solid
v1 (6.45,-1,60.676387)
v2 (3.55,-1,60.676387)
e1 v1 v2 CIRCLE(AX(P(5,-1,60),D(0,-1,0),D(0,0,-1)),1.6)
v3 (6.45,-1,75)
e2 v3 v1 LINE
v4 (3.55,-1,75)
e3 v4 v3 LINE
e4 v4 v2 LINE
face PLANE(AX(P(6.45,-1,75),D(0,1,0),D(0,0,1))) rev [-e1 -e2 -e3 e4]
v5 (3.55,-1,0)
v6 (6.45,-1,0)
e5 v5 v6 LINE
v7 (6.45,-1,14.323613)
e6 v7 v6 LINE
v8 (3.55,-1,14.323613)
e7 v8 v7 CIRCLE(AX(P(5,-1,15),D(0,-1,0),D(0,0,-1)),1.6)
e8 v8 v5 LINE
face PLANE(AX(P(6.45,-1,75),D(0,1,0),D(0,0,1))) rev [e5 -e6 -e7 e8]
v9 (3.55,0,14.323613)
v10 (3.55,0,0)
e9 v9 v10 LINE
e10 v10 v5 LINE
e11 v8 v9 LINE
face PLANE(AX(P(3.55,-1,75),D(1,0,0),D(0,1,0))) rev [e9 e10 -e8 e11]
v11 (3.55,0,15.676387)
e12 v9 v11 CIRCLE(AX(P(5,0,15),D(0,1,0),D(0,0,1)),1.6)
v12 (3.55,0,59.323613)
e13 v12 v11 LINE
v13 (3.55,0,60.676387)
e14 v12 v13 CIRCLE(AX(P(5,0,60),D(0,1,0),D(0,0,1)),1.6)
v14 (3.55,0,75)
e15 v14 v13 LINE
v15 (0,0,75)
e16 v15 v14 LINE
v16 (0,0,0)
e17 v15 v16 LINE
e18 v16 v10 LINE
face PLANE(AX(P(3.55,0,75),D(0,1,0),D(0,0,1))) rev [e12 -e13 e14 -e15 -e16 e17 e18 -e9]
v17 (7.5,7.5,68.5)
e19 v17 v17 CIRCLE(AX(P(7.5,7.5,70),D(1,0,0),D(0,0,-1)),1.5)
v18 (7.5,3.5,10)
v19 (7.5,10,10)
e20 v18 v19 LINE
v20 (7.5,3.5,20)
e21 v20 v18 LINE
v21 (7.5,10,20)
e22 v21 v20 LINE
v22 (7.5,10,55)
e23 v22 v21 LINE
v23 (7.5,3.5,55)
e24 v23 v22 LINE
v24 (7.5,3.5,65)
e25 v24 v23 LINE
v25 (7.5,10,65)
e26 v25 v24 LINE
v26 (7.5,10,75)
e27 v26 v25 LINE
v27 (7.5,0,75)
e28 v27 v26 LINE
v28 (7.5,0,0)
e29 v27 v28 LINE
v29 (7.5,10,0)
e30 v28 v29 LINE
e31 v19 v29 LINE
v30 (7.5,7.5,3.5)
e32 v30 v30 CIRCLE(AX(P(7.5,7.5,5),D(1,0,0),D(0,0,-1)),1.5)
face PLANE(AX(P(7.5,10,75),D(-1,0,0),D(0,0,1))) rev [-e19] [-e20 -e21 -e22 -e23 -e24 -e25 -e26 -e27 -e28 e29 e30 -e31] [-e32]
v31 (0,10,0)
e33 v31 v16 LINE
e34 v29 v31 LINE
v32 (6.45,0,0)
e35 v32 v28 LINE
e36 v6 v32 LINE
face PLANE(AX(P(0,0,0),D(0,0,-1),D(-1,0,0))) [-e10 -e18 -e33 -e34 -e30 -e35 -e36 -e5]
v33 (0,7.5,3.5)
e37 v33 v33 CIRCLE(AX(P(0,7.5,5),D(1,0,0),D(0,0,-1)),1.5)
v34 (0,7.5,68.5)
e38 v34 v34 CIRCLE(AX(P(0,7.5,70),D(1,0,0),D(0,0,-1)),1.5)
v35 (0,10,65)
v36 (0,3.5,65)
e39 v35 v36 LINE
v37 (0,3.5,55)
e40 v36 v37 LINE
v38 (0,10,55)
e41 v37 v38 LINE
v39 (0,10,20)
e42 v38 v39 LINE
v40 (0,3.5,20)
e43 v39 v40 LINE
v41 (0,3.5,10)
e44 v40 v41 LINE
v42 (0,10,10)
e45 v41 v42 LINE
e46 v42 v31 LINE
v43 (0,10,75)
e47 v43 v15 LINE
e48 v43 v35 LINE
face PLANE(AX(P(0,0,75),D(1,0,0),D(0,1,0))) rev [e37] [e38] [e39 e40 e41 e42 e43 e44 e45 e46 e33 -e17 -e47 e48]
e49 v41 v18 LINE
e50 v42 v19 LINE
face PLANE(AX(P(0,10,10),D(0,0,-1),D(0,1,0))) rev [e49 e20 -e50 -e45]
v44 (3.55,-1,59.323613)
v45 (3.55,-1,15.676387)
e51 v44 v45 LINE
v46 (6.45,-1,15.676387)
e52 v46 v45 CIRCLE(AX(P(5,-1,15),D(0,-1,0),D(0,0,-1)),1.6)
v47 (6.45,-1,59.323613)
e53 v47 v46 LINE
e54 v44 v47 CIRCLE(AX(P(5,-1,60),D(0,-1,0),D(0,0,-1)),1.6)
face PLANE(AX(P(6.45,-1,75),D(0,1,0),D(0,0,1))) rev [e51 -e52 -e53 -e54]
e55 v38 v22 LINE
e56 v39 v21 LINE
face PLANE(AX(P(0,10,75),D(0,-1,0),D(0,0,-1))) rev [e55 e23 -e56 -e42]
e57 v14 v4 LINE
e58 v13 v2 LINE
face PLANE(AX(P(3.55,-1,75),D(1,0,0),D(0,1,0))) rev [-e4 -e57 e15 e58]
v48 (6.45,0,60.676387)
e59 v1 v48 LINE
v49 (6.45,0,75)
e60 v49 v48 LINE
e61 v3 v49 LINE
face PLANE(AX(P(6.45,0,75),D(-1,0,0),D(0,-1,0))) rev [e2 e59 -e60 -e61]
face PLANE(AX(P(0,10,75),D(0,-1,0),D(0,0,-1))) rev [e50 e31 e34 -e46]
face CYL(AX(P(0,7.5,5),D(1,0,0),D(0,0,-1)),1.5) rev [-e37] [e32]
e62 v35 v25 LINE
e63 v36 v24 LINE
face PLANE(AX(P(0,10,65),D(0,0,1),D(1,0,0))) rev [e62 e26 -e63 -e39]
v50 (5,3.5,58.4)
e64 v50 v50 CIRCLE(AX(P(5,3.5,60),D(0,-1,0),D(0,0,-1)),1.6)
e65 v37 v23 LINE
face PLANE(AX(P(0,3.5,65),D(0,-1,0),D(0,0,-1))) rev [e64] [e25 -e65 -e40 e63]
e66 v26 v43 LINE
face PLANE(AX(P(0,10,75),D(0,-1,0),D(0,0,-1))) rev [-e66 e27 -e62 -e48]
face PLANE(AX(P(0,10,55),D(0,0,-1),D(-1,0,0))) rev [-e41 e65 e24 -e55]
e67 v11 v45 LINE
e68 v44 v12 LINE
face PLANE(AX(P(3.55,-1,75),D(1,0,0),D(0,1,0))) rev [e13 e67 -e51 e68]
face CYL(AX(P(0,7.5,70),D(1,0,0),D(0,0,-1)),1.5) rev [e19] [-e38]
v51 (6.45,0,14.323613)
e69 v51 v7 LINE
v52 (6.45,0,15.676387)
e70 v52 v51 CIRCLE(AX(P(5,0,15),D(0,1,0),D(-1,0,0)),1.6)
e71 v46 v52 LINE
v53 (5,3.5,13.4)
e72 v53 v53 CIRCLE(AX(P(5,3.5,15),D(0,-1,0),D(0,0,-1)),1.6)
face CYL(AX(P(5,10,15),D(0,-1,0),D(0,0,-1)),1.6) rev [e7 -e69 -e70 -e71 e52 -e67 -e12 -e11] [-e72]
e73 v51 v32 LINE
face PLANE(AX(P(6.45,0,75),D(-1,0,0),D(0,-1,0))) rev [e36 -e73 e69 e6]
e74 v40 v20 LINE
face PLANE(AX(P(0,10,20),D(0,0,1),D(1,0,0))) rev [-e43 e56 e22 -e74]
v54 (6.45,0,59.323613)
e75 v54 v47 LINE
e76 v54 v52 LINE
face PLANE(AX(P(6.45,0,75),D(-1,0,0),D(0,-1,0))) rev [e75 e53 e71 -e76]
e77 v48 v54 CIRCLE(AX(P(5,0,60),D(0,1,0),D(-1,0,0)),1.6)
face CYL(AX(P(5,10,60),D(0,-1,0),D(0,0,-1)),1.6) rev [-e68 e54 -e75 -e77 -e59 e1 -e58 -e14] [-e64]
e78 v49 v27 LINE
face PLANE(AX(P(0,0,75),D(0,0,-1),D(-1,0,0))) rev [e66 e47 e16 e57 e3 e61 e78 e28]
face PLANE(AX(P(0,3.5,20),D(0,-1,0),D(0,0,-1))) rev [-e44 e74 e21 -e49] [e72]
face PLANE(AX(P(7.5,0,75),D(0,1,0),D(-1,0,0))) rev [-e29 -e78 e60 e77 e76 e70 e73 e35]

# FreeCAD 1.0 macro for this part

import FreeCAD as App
import Part
import Sketcher

V = App.Vector
Q = App.Units.Quantity

doc = App.newDocument("Part")
params = doc.addObject("Spreadsheet::Sheet", "Params")
for row, (alias, value) in enumerate([
    ("sketch1_height", "10 mm"),
    ("sketch1_height2", "1 mm"),
    ("sketch1_width", "7.5 mm"),
    ("sketch1_width2", "2.9 mm"),
    ("sketch1_width3", "3.55 mm"),
    ("pad1_length", "75 mm"),
    ("sketch2_diameter", "3 mm"),
    ("sketch3_height", "10 mm"),
    ("sketch3_width", "6.5 mm"),
    ("sketch4_diameter", "3.2 mm"),
], start=1):
    params.set(f"A{row}", alias)
    params.set(f"B{row}", "=" + value)
    params.setAlias(f"B{row}", alias)

body = doc.addObject("PartDesign::Body", "Body")

sketch1 = body.newObject("Sketcher::SketchObject", "Sketch")
sketch1.AttachmentSupport = (doc.getObject("XY_Plane"), [""])
sketch1.MapMode = "FlatFace"
sketch1.addGeometry([
    Part.LineSegment(V(7.5, 10, 0), V(0, 10, 0)),
    Part.LineSegment(V(0, 10, 0), V(0, 0, 0)),
    Part.LineSegment(V(0, 0, 0), V(3.5, 0, 0)),
    Part.LineSegment(V(3.5, 0, 0), V(3.5, -1, 0)),
    Part.LineSegment(V(3.5, -1, 0), V(6.5, -1, 0)),
    Part.LineSegment(V(6.5, -1, 0), V(6.5, 0, 0)),
    Part.LineSegment(V(6.5, 0, 0), V(7.5, 0, 0)),
    Part.LineSegment(V(7.5, 0, 0), V(7.5, 10, 0)),
], False)
sketch1.addConstraint([
    Sketcher.Constraint("Coincident", 0, 2, 1, 1),
    Sketcher.Constraint("Coincident", 1, 2, 2, 1),
    Sketcher.Constraint("Coincident", 2, 2, 3, 1),
    Sketcher.Constraint("Coincident", 3, 2, 4, 1),
    Sketcher.Constraint("Coincident", 4, 2, 5, 1),
    Sketcher.Constraint("Coincident", 5, 2, 6, 1),
    Sketcher.Constraint("Coincident", 6, 2, 7, 1),
    Sketcher.Constraint("Coincident", 7, 2, 0, 1),
    Sketcher.Constraint("Horizontal", 0),
    Sketcher.Constraint("Vertical", 1),
    Sketcher.Constraint("Horizontal", 2),
    Sketcher.Constraint("Vertical", 3),
    Sketcher.Constraint("Horizontal", 4),
    Sketcher.Constraint("Vertical", 5),
    Sketcher.Constraint("Horizontal", 6),
    Sketcher.Constraint("Vertical", 7),
    Sketcher.Constraint("Coincident", 1, 2, -1, 1),
    Sketcher.Constraint("PointOnObject", 5, 2, -1),
    Sketcher.Constraint("DistanceY", 1, 2, 1, 1, Q("10 mm")),
    Sketcher.Constraint("DistanceY", 3, 2, 3, 1, Q("1 mm")),
    Sketcher.Constraint("DistanceX", 0, 2, 0, 1, Q("7.5 mm")),
    Sketcher.Constraint("DistanceX", 4, 1, 4, 2, Q("2.9 mm")),
    Sketcher.Constraint("DistanceX", 2, 1, 2, 2, Q("3.55 mm")),
])
sketch1.setExpression("Constraints[18]", "Params.sketch1_height")
sketch1.setExpression("Constraints[19]", "Params.sketch1_height2")
sketch1.setExpression("Constraints[20]", "Params.sketch1_width")
sketch1.setExpression("Constraints[21]", "Params.sketch1_width2")
sketch1.setExpression("Constraints[22]", "Params.sketch1_width3")
pad1 = body.newObject("PartDesign::Pad", "Pad")
pad1.Profile = sketch1
pad1.setExpression("Length", "Params.pad1_length")

sketch2 = body.newObject("Sketcher::SketchObject", "Sketch001")
sketch2.AttachmentSupport = (doc.getObject("YZ_Plane"), [""])
sketch2.MapMode = "FlatFace"
sketch2.AttachmentOffset = App.Placement(V(0, 0, 7.5), App.Rotation())
sketch2.addGeometry([
    Part.Circle(V(7.5, 5, 0), V(0, 0, 1), 1.5),
    Part.Circle(V(7.5, 70, 0), V(0, 0, 1), 1.5),
], False)
sketch2.addConstraint([
    Sketcher.Constraint("Equal", 0, 1),
    Sketcher.Constraint("Vertical", 0, 3, 1, 3),
    Sketcher.Constraint("Diameter", 0, Q("3 mm")),
    Sketcher.Constraint("DistanceY", -1, 1, 0, 3, Q("5 mm")),
    Sketcher.Constraint("DistanceY", -1, 1, 1, 3, Q("70 mm")),
    Sketcher.Constraint("DistanceX", -1, 1, 0, 3, Q("7.5 mm")),
])
sketch2.setExpression("Constraints[2]", "Params.sketch2_diameter")
pocket1 = body.newObject("PartDesign::Pocket", "Pocket")
pocket1.Profile = sketch2
pocket1.Type = "ThroughAll"

sketch3 = body.newObject("Sketcher::SketchObject", "Sketch002")
sketch3.AttachmentSupport = (doc.getObject("YZ_Plane"), [""])
sketch3.MapMode = "FlatFace"
sketch3.AttachmentOffset = App.Placement(V(0, 0, 7.5), App.Rotation())
sketch3.addGeometry([
    Part.LineSegment(V(10, 65, 0), V(4, 65, 0)),
    Part.LineSegment(V(4, 65, 0), V(4, 55, 0)),
    Part.LineSegment(V(4, 55, 0), V(10, 55, 0)),
    Part.LineSegment(V(10, 55, 0), V(10, 65, 0)),
    Part.LineSegment(V(10, 20, 0), V(4, 20, 0)),
    Part.LineSegment(V(4, 20, 0), V(4, 10, 0)),
    Part.LineSegment(V(4, 10, 0), V(10, 10, 0)),
    Part.LineSegment(V(10, 10, 0), V(10, 20, 0)),
], False)
sketch3.addConstraint([
    Sketcher.Constraint("Coincident", 0, 2, 1, 1),
    Sketcher.Constraint("Coincident", 1, 2, 2, 1),
    Sketcher.Constraint("Coincident", 2, 2, 3, 1),
    Sketcher.Constraint("Coincident", 3, 2, 0, 1),
    Sketcher.Constraint("Coincident", 4, 2, 5, 1),
    Sketcher.Constraint("Coincident", 5, 2, 6, 1),
    Sketcher.Constraint("Coincident", 6, 2, 7, 1),
    Sketcher.Constraint("Coincident", 7, 2, 4, 1),
    Sketcher.Constraint("Horizontal", 0),
    Sketcher.Constraint("Vertical", 1),
    Sketcher.Constraint("Horizontal", 2),
    Sketcher.Constraint("Vertical", 3),
    Sketcher.Constraint("Horizontal", 4),
    Sketcher.Constraint("Vertical", 5),
    Sketcher.Constraint("Horizontal", 6),
    Sketcher.Constraint("Vertical", 7),
    Sketcher.Constraint("Vertical", 1, 2, 4, 2),
    Sketcher.Constraint("Vertical", 3, 2, 6, 2),
    Sketcher.Constraint("Equal", 3, 5),
    Sketcher.Constraint("DistanceY", 1, 2, 1, 1, Q("10 mm")),
    Sketcher.Constraint("DistanceX", 0, 2, 0, 1, Q("6.5 mm")),
    Sketcher.Constraint("DistanceY", -1, 1, 0, 2, Q("65 mm")),
    Sketcher.Constraint("DistanceX", -1, 1, 2, 2, Q("10 mm")),
    Sketcher.Constraint("DistanceY", -1, 1, 4, 2, Q("20 mm")),
])
sketch3.setExpression("Constraints[19]", "Params.sketch3_height")
sketch3.setExpression("Constraints[20]", "Params.sketch3_width")
pocket2 = body.newObject("PartDesign::Pocket", "Pocket001")
pocket2.Profile = sketch3
pocket2.Type = "ThroughAll"

sketch4 = body.newObject("Sketcher::SketchObject", "Sketch003")
sketch4.AttachmentSupport = (doc.getObject("XZ_Plane"), [""])
sketch4.MapMode = "FlatFace"
sketch4.AttachmentOffset = App.Placement(V(0, 0, 1), App.Rotation())
sketch4.addGeometry([
    Part.Circle(V(5, 60, 0), V(0, 0, 1), 1.6),
    Part.Circle(V(5, 15, 0), V(0, 0, 1), 1.6),
], False)
sketch4.addConstraint([
    Sketcher.Constraint("Equal", 0, 1),
    Sketcher.Constraint("Vertical", 0, 3, 1, 3),
    Sketcher.Constraint("Diameter", 0, Q("3.2 mm")),
    Sketcher.Constraint("DistanceX", -1, 1, 0, 3, Q("5 mm")),
    Sketcher.Constraint("DistanceY", -1, 1, 0, 3, Q("60 mm")),
    Sketcher.Constraint("DistanceY", -1, 1, 1, 3, Q("15 mm")),
])
sketch4.setExpression("Constraints[2]", "Params.sketch4_diameter")
pocket3 = body.newObject("PartDesign::Pocket", "Pocket002")
pocket3.Profile = sketch4
pocket3.Type = "ThroughAll"

doc.recompute()
